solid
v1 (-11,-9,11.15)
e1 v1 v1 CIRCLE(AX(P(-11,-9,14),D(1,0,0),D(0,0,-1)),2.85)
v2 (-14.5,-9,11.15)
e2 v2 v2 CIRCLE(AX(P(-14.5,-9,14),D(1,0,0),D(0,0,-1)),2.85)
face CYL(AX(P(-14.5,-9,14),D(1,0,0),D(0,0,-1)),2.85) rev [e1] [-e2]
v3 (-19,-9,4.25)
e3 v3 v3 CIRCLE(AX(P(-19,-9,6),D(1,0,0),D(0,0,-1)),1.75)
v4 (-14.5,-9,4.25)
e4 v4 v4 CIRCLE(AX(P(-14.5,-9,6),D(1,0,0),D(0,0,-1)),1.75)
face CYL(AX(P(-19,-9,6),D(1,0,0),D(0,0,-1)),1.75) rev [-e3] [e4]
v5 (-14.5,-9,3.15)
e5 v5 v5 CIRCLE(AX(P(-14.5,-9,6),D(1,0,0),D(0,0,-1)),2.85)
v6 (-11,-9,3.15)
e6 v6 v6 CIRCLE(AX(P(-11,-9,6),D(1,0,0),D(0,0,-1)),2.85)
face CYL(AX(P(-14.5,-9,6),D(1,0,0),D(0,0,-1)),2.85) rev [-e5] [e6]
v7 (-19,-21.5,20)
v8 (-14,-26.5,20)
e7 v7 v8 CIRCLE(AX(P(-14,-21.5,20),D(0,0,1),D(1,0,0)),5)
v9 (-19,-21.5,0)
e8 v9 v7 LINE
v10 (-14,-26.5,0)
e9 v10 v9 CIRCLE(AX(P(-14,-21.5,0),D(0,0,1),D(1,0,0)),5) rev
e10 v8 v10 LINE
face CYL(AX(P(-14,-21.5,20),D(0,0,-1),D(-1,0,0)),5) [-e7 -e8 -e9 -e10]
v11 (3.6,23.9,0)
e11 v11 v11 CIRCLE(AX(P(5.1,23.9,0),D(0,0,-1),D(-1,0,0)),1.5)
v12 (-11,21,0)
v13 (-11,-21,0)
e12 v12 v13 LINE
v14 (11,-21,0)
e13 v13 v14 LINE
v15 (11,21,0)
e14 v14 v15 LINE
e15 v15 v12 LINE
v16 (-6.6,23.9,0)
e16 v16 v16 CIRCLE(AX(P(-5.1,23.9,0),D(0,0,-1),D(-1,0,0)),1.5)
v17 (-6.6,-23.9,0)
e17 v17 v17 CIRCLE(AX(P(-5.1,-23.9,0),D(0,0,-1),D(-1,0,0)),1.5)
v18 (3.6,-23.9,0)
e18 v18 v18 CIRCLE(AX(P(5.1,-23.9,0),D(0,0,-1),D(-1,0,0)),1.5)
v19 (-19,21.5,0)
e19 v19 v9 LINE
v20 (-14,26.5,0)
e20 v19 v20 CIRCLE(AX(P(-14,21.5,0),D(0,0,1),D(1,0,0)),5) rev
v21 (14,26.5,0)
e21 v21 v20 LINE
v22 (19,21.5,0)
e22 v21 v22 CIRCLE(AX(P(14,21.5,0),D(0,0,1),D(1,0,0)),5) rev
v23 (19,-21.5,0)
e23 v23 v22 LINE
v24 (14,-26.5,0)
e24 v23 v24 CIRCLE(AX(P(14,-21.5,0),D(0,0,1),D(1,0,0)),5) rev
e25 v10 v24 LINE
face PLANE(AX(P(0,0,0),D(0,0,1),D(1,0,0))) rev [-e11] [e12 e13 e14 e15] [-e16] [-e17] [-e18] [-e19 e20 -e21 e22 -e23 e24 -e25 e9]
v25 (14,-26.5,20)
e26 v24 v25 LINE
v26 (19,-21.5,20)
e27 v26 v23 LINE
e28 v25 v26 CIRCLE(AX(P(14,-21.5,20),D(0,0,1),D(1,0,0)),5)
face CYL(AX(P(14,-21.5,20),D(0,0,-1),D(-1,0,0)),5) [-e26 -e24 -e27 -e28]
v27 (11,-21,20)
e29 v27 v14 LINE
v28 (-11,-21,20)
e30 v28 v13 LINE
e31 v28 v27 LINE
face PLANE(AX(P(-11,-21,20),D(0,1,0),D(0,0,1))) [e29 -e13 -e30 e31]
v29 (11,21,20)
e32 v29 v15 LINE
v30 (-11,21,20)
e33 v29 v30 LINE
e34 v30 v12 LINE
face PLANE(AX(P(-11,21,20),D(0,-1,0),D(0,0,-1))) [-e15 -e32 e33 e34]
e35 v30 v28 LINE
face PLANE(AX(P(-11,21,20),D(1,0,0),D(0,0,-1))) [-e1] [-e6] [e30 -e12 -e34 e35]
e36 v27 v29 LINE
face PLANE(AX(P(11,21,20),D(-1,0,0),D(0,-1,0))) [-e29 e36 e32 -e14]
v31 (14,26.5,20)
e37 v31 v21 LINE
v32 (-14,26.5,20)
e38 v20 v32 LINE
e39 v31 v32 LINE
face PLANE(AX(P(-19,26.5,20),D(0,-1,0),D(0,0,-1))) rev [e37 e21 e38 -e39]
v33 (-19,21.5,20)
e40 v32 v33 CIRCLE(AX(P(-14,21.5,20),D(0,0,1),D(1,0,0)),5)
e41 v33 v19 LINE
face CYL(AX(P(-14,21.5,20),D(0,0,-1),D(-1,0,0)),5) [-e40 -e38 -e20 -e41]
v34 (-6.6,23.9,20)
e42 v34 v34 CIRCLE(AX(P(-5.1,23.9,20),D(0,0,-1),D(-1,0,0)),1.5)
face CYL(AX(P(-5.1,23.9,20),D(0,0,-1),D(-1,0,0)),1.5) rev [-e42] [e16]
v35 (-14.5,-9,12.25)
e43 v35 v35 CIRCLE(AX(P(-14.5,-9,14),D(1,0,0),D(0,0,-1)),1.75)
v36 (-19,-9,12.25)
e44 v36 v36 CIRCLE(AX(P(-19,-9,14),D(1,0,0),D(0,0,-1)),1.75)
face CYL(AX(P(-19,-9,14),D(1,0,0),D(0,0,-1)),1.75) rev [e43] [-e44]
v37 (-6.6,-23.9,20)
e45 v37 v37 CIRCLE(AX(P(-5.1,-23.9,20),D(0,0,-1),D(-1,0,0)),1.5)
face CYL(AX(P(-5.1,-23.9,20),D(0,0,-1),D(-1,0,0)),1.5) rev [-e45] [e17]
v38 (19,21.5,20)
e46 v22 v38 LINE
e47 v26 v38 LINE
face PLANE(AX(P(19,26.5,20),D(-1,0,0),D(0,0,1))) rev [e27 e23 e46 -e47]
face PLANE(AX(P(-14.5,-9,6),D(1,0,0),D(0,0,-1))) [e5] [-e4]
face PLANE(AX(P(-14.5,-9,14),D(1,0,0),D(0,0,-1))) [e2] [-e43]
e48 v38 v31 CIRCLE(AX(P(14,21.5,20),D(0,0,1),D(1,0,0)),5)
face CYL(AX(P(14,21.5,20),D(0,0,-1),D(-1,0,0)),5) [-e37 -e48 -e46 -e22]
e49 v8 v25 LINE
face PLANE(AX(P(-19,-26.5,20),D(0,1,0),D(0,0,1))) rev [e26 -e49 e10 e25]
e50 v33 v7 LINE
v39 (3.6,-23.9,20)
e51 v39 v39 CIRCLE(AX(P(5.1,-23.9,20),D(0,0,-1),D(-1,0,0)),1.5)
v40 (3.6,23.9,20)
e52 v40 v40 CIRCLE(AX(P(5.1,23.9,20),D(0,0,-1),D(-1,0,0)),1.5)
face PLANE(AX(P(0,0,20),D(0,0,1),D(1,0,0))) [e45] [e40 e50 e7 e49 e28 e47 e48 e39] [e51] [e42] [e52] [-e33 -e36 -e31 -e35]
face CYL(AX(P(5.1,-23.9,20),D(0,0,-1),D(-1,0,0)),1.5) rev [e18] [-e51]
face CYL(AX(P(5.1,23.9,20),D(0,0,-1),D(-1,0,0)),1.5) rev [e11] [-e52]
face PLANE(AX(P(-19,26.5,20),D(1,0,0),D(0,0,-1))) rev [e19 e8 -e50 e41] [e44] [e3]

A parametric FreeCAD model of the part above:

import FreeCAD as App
import Part
import Sketcher

V = App.Vector
Q = App.Units.Quantity


def edges_at(feature, points):
    """Names of the edges that pass closest to the given points."""
    edges = feature.Shape.Edges
    near = lambda p: min(range(len(edges)), key=lambda i: edges[i].distToShape(Part.Vertex(*p))[0])
    return sorted({f"Edge{near(p) + 1}" for p in points})

doc = App.newDocument("Part")
params = doc.addObject("Spreadsheet::Sheet", "Params")
for row, (alias, value) in enumerate([
    ("sketch1_width", "38 mm"),
    ("sketch1_width2", "22 mm"),
    ("sketch1_height", "53 mm"),
    ("sketch1_height2", "42 mm"),
    ("pad1_length", "20 mm"),
    ("sketch2_diameter", "3 mm"),
    ("fillet_radius", "5 mm"),
    ("sketch3_diameter", "3.5 mm"),
    ("sketch4_diameter", "5.7 mm"),
    ("sketch4_diameter2", "3.5 mm"),
    ("pocket3_length", "3.5 mm"),
], start=1):
    params.set(f"A{row}", alias)
    params.set(f"B{row}", "=" + value)
    params.setAlias(f"B{row}", alias)

body = doc.addObject("PartDesign::Body", "Body")

# Sketch on XY plane
sketch1 = doc.addObject("Sketcher::SketchObject", "Sketch")
body.addObject(sketch1)
sketch1.AttachmentSupport = (doc.XY_Plane, [""])
sketch1.MapMode = "FlatFace"
sketch1.addGeometry([
    Part.LineSegment(V(-19, 26, 0), V(-19, -26, 0)),  # 0
    Part.LineSegment(V(-19, -26, 0), V(19, -26, 0)),  # 1
    Part.LineSegment(V(19, -26, 0), V(19, 26, 0)),  # 2
    Part.LineSegment(V(19, 26, 0), V(-19, 26, 0)),  # 3
    Part.LineSegment(V(11, -21, 0), V(-11, -21, 0)),  # 4
    Part.LineSegment(V(-11, -21, 0), V(-11, 21, 0)),  # 5
    Part.LineSegment(V(-11, 21, 0), V(11, 21, 0)),  # 6
    Part.LineSegment(V(11, 21, 0), V(11, -21, 0)),  # 7
], False)
sketch1.addConstraint([
    Sketcher.Constraint("Coincident", 0, 2, 1, 1),
    Sketcher.Constraint("Coincident", 1, 2, 2, 1),
    Sketcher.Constraint("Coincident", 2, 2, 3, 1),
    Sketcher.Constraint("Coincident", 3, 2, 0, 1),
    Sketcher.Constraint("Coincident", 4, 2, 5, 1),
    Sketcher.Constraint("Coincident", 5, 2, 6, 1),
    Sketcher.Constraint("Coincident", 6, 2, 7, 1),
    Sketcher.Constraint("Coincident", 7, 2, 4, 1),
    Sketcher.Constraint("Vertical", 0),
    Sketcher.Constraint("Horizontal", 1),
    Sketcher.Constraint("Vertical", 2),
    Sketcher.Constraint("Horizontal", 3),
    Sketcher.Constraint("Horizontal", 4),
    Sketcher.Constraint("Vertical", 5),
    Sketcher.Constraint("Horizontal", 6),
    Sketcher.Constraint("Vertical", 7),
    Sketcher.Constraint("Symmetric", 0, 2, 2, 2, -1, 1),
    Sketcher.Constraint("Symmetric", 4, 2, 6, 2, -1, 1),
    Sketcher.Constraint("DistanceX", 1, 1, 1, 2, Q("38 mm")),
    Sketcher.Constraint("DistanceX", 4, 2, 4, 1, Q("22 mm")),
    Sketcher.Constraint("DistanceY", 0, 2, 0, 1, Q("53 mm")),
    Sketcher.Constraint("DistanceY", 5, 1, 5, 2, Q("42 mm")),
])
sketch1.setExpression("Constraints[18]", "Params.sketch1_width")
sketch1.setExpression("Constraints[19]", "Params.sketch1_width2")
sketch1.setExpression("Constraints[20]", "Params.sketch1_height")
sketch1.setExpression("Constraints[21]", "Params.sketch1_height2")
pad1 = doc.addObject("PartDesign::Pad", "Pad")
body.addObject(pad1)
pad1.Profile = sketch1
pad1.setExpression("Length", "Params.pad1_length")

# Sketch on XY plane
sketch2 = doc.addObject("Sketcher::SketchObject", "Sketch001")
body.addObject(sketch2)
sketch2.AttachmentSupport = (doc.XY_Plane, [""])
sketch2.MapMode = "FlatFace"
sketch2.addGeometry([
    Part.Circle(V(5.1, -23.9, 0), V(0, 0, 1), 1.5),
    Part.Circle(V(-5.1, -23.9, 0), V(0, 0, 1), 1.5),
    Part.Circle(V(5.1, 23.9, 0), V(0, 0, 1), 1.5),
    Part.Circle(V(-5.1, 23.9, 0), V(0, 0, 1), 1.5),
], False)
sketch2.addConstraint([
    Sketcher.Constraint("Equal", 0, 1),
    Sketcher.Constraint("Equal", 1, 2),
    Sketcher.Constraint("Equal", 2, 3),
    Sketcher.Constraint("Symmetric", 1, 3, 2, 3, -1, 1),
    Sketcher.Constraint("Symmetric", 0, 3, 3, 3, -1, 1),
    Sketcher.Constraint("Symmetric", 0, 3, 1, 3, -2),
    Sketcher.Constraint("Diameter", 0, Q("3 mm")),
    Sketcher.Constraint("DistanceX", -1, 1, 0, 3, Q("5.1 mm")),
    Sketcher.Constraint("DistanceY", 0, 3, -1, 1, Q("23.9 mm")),
])
sketch2.setExpression("Constraints[6]", "Params.sketch2_diameter")
pocket1 = doc.addObject("PartDesign::Pocket", "Pocket")
body.addObject(pocket1)
pocket1.Profile = sketch2
pocket1.Type = "ThroughAll"
pocket1.Reversed = True
doc.recompute()

fillet = doc.addObject("PartDesign::Fillet", "Fillet")
body.addObject(fillet)
fillet.Base = (pocket1, edges_at(pocket1, [
    (19, -26.5, 10),
    (-19, -26.5, 10),
    (-19, 26.5, 10),
    (19, 26.5, 10),
]))
fillet.setExpression("Radius", "Params.fillet_radius")

# Sketch on YZ plane
sketch3 = doc.addObject("Sketcher::SketchObject", "Sketch002")
body.addObject(sketch3)
sketch3.AttachmentSupport = (doc.YZ_Plane, [""])
sketch3.MapMode = "FlatFace"
sketch3.AttachmentOffset = App.Placement(V(0, 0, -11), App.Rotation())
sketch3.addGeometry([
    Part.Circle(V(-9, 14, 0), V(0, 0, 1), 1.8),
    Part.Circle(V(-9, 6, 0), V(0, 0, 1), 1.8),
], False)
sketch3.addConstraint([
    Sketcher.Constraint("Equal", 0, 1),
    Sketcher.Constraint("Vertical", 0, 3, 1, 3),
    Sketcher.Constraint("Diameter", 0, Q("3.5 mm")),
    Sketcher.Constraint("DistanceX", 0, 3, -1, 1, Q("9 mm")),
    Sketcher.Constraint("DistanceY", -1, 1, 0, 3, Q("14 mm")),
    Sketcher.Constraint("DistanceY", -1, 1, 1, 3, Q("6 mm")),
])
sketch3.setExpression("Constraints[2]", "Params.sketch3_diameter")
pocket2 = doc.addObject("PartDesign::Pocket", "Pocket001")
body.addObject(pocket2)
pocket2.Profile = sketch3
pocket2.Type = "ThroughAll"

# Sketch on YZ plane
sketch4 = doc.addObject("Sketcher::SketchObject", "Sketch003")
body.addObject(sketch4)
sketch4.AttachmentSupport = (doc.YZ_Plane, [""])
sketch4.MapMode = "FlatFace"
sketch4.AttachmentOffset = App.Placement(V(0, 0, -11), App.Rotation())
sketch4.addGeometry([
    Part.Circle(V(-9, 14, 0), V(0, 0, 1), 2.9),
    Part.Circle(V(-9, 14, 0), V(0, 0, 1), 1.8),
    Part.Circle(V(-9, 6, 0), V(0, 0, 1), 2.9),
    Part.Circle(V(-9, 6, 0), V(0, 0, 1), 1.8),
], False)
sketch4.addConstraint([
    Sketcher.Constraint("Coincident", 1, 3, 0, 3),
    Sketcher.Constraint("Coincident", 3, 3, 2, 3),
    Sketcher.Constraint("Equal", 0, 2),
    Sketcher.Constraint("Equal", 1, 3),
    Sketcher.Constraint("Vertical", 1, 3, 2, 3),
    Sketcher.Constraint("Diameter", 0, Q("5.7 mm")),
    Sketcher.Constraint("Diameter", 1, Q("3.5 mm")),
    Sketcher.Constraint("DistanceX", 0, 3, -1, 1, Q("9 mm")),
    Sketcher.Constraint("DistanceY", -1, 1, 0, 3, Q("14 mm")),
    Sketcher.Constraint("DistanceY", -1, 1, 2, 3, Q("6 mm")),
])
sketch4.setExpression("Constraints[5]", "Params.sketch4_diameter")
sketch4.setExpression("Constraints[6]", "Params.sketch4_diameter2")
pocket3 = doc.addObject("PartDesign::Pocket", "Pocket002")
body.addObject(pocket3)
pocket3.Profile = sketch4
pocket3.setExpression("Length", "Params.pocket3_length")

doc.recompute()
